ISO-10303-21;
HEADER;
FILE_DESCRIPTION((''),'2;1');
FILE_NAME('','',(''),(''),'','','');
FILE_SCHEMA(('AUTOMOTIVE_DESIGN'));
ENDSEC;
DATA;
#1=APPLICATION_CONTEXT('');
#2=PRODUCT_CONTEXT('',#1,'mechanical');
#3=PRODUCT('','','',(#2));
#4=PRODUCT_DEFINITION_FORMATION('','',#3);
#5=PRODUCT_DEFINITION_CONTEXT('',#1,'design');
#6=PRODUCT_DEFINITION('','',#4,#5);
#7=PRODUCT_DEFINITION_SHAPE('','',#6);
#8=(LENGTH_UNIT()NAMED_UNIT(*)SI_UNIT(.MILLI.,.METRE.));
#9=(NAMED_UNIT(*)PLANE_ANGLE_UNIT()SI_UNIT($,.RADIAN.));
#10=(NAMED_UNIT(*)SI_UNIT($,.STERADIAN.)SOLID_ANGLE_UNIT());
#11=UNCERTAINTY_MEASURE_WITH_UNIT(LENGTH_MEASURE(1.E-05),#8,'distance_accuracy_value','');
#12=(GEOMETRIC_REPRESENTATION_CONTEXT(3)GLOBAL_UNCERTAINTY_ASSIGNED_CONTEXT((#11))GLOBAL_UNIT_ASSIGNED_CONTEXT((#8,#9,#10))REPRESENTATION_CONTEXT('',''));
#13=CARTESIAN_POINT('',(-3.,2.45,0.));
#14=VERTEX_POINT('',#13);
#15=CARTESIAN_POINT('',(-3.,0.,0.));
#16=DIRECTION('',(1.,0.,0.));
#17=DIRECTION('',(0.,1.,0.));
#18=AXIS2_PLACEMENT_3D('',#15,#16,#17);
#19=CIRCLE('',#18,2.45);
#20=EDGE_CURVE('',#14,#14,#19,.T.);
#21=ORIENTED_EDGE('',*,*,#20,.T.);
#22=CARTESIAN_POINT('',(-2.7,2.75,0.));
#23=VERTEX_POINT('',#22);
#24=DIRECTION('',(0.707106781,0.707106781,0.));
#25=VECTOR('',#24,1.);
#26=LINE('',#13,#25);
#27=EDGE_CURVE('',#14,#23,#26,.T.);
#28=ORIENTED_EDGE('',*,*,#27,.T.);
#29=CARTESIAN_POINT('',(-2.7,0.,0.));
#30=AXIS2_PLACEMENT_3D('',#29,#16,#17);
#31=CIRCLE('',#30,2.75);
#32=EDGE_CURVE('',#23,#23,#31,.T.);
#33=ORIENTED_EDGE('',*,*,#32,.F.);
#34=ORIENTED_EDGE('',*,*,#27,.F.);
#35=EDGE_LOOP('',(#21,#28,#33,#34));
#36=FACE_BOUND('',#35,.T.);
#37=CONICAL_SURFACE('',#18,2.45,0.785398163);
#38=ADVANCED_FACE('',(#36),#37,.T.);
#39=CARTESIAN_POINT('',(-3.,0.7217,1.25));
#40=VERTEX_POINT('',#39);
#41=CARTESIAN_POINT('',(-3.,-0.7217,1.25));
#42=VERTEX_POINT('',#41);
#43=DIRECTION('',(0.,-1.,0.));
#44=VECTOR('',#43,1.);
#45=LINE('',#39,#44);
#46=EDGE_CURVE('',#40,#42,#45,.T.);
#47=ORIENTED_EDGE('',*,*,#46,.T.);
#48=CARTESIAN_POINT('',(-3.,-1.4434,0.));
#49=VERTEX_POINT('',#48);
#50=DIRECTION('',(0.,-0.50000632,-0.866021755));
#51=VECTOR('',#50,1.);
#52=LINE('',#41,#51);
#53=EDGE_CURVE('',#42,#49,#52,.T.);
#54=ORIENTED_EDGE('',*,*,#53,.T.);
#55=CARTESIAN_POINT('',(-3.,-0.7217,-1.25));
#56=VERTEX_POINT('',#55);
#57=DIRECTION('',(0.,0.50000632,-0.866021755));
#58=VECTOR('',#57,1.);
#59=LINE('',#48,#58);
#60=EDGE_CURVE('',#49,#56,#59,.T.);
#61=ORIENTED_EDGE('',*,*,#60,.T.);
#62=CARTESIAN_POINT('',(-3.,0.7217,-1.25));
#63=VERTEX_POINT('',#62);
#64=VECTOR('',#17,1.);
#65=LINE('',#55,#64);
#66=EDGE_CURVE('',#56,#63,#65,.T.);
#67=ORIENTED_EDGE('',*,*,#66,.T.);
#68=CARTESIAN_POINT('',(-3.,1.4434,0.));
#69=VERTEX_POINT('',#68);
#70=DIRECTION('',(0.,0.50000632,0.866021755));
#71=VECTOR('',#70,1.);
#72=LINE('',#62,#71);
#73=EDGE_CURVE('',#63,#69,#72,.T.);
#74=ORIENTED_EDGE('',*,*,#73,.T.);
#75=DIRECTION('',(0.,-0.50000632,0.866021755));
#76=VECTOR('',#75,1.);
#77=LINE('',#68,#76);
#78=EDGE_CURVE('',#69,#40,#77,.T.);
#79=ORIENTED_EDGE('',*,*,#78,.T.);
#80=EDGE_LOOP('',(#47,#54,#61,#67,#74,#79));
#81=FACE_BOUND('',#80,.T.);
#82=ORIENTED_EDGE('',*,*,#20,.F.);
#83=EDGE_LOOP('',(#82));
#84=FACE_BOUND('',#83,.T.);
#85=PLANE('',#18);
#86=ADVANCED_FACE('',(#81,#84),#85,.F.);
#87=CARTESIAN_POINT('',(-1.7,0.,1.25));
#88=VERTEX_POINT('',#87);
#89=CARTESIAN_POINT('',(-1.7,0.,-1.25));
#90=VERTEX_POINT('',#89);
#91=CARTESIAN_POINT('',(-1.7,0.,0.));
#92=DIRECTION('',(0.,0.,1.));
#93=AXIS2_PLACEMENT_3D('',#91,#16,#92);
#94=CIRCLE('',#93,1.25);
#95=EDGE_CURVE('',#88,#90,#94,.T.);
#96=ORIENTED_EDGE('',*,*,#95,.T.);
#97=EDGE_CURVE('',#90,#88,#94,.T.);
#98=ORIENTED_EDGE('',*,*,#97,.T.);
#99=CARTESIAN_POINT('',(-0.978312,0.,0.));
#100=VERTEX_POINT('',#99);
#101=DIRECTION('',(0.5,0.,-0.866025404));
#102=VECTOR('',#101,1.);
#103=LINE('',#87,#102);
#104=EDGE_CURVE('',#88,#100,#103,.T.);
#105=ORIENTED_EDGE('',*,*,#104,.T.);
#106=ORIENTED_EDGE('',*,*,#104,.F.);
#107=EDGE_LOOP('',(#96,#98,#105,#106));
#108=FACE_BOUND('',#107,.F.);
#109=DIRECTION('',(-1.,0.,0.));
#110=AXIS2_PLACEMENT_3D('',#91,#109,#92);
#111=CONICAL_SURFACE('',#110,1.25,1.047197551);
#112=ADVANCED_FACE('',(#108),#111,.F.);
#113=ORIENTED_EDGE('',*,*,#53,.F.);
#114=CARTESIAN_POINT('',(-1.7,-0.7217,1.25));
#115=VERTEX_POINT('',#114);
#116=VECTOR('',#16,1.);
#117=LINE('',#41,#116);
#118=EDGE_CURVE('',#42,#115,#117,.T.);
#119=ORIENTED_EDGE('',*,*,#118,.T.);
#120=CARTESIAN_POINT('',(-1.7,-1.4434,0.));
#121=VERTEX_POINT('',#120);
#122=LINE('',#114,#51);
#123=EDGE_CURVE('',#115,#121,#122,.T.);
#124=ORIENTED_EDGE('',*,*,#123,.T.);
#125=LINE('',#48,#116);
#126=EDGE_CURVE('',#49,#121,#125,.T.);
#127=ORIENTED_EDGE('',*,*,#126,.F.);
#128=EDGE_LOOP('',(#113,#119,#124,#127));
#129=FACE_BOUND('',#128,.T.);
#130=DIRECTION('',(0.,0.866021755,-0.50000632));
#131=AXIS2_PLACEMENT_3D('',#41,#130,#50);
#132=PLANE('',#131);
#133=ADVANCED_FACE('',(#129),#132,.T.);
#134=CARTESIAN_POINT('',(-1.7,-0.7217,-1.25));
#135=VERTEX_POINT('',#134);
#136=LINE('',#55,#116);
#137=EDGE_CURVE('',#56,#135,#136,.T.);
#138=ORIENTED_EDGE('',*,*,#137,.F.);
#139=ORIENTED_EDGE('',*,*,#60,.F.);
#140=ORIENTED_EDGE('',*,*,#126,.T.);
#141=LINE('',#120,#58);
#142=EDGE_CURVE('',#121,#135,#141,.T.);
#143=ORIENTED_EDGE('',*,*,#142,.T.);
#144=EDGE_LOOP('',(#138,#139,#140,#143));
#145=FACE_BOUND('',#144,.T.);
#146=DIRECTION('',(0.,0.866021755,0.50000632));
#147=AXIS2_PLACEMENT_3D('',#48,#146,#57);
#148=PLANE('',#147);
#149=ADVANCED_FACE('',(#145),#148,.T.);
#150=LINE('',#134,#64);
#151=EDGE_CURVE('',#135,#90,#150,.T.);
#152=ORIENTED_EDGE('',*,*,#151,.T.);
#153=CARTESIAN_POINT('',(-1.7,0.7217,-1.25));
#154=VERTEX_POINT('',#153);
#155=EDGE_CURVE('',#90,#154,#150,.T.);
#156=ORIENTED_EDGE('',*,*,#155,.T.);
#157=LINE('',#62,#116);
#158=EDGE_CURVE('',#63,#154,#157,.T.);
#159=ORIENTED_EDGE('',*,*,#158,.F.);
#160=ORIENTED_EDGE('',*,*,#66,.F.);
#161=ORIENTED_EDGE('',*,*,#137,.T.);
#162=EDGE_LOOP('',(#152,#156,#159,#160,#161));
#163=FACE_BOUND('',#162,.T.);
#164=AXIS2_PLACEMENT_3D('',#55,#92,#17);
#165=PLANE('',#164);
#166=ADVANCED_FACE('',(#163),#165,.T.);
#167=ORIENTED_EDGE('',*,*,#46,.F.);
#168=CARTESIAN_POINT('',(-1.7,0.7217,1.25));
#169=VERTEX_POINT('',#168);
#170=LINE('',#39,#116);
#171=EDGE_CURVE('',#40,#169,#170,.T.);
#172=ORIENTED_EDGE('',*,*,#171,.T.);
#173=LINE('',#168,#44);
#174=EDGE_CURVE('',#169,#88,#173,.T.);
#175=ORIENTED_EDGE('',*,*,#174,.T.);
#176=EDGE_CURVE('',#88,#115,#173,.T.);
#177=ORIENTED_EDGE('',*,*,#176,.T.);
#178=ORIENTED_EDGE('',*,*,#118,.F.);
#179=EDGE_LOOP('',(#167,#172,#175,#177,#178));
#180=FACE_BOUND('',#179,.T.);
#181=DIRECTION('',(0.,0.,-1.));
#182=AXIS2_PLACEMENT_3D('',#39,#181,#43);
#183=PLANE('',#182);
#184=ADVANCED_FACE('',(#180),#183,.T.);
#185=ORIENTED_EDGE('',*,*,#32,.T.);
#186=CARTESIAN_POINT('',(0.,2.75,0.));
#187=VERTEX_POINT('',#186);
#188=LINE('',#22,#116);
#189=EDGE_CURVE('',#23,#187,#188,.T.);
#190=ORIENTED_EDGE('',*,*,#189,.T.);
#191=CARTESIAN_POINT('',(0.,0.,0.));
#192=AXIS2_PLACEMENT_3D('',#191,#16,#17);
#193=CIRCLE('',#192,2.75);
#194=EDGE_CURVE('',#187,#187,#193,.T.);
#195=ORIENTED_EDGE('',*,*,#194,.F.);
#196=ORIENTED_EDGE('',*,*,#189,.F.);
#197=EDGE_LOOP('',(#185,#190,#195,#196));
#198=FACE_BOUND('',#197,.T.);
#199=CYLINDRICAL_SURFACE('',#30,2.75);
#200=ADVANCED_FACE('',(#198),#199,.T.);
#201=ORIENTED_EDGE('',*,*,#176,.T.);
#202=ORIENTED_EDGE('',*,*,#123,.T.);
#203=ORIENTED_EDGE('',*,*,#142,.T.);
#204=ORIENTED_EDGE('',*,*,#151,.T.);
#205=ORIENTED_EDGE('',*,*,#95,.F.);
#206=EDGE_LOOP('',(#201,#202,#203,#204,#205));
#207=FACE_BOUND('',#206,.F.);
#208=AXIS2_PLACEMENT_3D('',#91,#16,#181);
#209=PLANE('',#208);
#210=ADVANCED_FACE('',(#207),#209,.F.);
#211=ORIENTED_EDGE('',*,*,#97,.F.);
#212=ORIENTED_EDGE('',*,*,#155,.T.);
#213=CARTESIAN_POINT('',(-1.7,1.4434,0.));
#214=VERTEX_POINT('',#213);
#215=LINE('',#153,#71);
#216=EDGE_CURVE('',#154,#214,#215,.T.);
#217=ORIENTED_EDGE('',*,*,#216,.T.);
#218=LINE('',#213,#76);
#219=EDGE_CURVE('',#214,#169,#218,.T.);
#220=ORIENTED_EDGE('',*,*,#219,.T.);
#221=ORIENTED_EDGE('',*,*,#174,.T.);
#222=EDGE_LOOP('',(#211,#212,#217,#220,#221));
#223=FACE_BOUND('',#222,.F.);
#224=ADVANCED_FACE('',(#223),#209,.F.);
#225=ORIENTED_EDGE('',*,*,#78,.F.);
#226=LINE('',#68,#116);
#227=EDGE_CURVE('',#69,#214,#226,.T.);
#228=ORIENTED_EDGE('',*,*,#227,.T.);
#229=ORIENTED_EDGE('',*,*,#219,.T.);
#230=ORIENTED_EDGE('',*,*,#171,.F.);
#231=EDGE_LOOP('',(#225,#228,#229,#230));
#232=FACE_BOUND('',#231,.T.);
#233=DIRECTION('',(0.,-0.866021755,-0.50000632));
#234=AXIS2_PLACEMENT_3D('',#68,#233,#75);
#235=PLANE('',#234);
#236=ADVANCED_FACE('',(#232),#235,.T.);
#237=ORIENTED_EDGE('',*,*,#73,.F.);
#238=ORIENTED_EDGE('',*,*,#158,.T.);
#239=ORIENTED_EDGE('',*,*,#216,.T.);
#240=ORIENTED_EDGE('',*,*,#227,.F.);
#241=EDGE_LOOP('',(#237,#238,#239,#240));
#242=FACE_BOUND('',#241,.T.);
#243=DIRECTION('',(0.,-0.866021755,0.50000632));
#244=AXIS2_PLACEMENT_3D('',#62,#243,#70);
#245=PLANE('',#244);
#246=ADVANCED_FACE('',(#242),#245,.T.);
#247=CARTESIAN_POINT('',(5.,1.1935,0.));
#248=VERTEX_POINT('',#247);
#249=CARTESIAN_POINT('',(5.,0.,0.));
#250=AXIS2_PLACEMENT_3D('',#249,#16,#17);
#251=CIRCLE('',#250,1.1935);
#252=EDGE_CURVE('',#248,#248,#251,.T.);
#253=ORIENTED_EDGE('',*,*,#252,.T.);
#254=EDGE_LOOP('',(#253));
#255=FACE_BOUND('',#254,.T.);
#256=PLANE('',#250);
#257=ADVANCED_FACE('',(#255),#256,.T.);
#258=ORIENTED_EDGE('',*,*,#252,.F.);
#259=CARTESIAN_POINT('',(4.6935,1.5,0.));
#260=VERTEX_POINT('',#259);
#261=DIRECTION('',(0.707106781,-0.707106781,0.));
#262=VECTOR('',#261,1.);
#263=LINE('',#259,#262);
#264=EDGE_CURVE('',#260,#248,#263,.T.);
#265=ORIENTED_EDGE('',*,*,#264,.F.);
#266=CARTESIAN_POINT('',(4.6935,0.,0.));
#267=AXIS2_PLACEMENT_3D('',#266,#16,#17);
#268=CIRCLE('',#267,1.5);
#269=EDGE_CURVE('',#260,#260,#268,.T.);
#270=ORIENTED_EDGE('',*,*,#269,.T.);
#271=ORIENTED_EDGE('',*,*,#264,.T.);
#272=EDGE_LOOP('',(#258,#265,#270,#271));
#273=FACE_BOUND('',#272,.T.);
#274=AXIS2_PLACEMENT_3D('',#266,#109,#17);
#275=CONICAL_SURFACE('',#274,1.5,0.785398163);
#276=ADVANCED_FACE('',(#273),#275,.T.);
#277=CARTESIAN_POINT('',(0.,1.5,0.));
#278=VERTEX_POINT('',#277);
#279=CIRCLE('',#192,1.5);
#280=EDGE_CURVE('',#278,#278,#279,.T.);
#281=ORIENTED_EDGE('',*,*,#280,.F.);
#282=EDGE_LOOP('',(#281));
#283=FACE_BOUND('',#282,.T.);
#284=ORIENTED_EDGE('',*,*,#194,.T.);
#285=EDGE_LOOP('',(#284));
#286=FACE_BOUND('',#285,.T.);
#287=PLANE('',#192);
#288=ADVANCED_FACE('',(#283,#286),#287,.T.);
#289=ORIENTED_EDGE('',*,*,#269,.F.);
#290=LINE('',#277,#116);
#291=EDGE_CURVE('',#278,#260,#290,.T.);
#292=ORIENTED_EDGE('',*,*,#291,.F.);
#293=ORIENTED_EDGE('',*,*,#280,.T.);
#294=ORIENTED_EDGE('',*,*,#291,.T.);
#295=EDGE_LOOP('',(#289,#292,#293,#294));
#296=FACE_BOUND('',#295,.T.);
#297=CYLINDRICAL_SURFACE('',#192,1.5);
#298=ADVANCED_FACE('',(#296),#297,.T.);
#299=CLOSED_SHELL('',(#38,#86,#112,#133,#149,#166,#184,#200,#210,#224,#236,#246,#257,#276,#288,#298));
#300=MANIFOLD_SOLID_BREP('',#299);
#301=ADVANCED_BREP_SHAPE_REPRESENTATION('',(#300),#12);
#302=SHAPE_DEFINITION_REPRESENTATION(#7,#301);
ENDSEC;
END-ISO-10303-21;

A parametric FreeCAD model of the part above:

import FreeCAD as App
import Part
import Sketcher
from FreeCAD import Vector
Q = App.Units.Quantity


def add_polygon(sketch, points):
    """Adds a closed chain of lines whose ends are joined by coincident constraints."""
    first, n = sketch.GeometryCount, len(points)
    for a, b in zip(points, points[1:] + points[:1]):
        sketch.addGeometry(Part.LineSegment(App.Vector(*a, 0), App.Vector(*b, 0)), False)
    for i in range(n):
        sketch.addConstraint(Sketcher.Constraint("Coincident", first + i, 2, first + (i + 1) % n, 1))

doc = App.newDocument("Part")
params = doc.addObject("Spreadsheet::Sheet", "Params")
for row, (alias, value) in enumerate([
    ("sketch1_width", "8 mm"),
    ("sketch1_width2", "2.7 mm"),
    ("sketch1_height", "1.25 mm"),
    ("sketch1_height2", "2.45 mm"),
    ("revolution_angle", "360 deg"),
    ("sketch2_diameter", "2.5 mm"),
    ("hole_diameter", "2.5 mm"),
    ("hole_depth", "1.3 mm"),
    ("pocket1_length", "1.3 mm"),
], start=1):
    params.set(f"A{row}", alias)
    params.set(f"B{row}", "=" + value)
    params.setAlias(f"B{row}", alias)

body = doc.addObject("PartDesign::Body", "Body")

sketch1 = body.newObject("Sketcher::SketchObject", "Sketch")
sketch1.AttachmentSupport = (doc.getObject("XY_Plane"), [""])
sketch1.MapMode = "FlatFace"
add_polygon(sketch1, [(-3, 0), (5, 0), (5, 1.1935), (4.6935, 1.5), (0, 1.5), (0, 2.75), (-2.7, 2.75), (-3, 2.45)])
sketch1.addConstraint(Sketcher.Constraint("Horizontal", 0))
sketch1.addConstraint(Sketcher.Constraint("Vertical", 1))
sketch1.addConstraint(Sketcher.Constraint("Horizontal", 3))
sketch1.addConstraint(Sketcher.Constraint("Vertical", 4))
sketch1.addConstraint(Sketcher.Constraint("Horizontal", 5))
sketch1.addConstraint(Sketcher.Constraint("Vertical", 7))
sketch1.addConstraint(Sketcher.Constraint("PointOnObject", 0, 2, -1))
sketch1.addConstraint(Sketcher.Constraint("PointOnObject", 3, 2, -2))
sketch1.addConstraint(Sketcher.Constraint("Perpendicular", 2, 6))
sketch1.addConstraint(Sketcher.Constraint("DistanceX", 0, 1, 0, 2, 8.0))
sketch1.addConstraint(Sketcher.Constraint("Angle", 2, Q("135 deg")))
sketch1.addConstraint(Sketcher.Constraint("DistanceX", 5, 2, 5, 1, 2.7))
sketch1.addConstraint(Sketcher.Constraint("DistanceX", -1, 1, 0, 2, 5.0))
sketch1.addConstraint(Sketcher.Constraint("DistanceY", 4, 1, 4, 2, 1.25))
sketch1.addConstraint(Sketcher.Constraint("DistanceY", 7, 2, 7, 1, 2.45))
sketch1.addConstraint(Sketcher.Constraint("DistanceX", 3, 2, 3, 1, 4.6935))
sketch1.setExpression("Constraints[17]", "Params.sketch1_width")
sketch1.setExpression("Constraints[19]", "Params.sketch1_width2")
sketch1.setExpression("Constraints[21]", "Params.sketch1_height")
sketch1.setExpression("Constraints[22]", "Params.sketch1_height2")
revolution = body.newObject("PartDesign::Revolution", "Revolution")
revolution.Profile = sketch1
revolution.ReferenceAxis = (sketch1, ["H_Axis"])
revolution.setExpression("Angle", "Params.revolution_angle")

sketch2 = body.newObject("Sketcher::SketchObject", "Sketch001")
sketch2.AttachmentSupport = (doc.getObject("YZ_Plane"), [""])
sketch2.MapMode = "FlatFace"
sketch2.AttachmentOffset = App.Placement(Vector(0, 0, -3), App.Rotation())
sketch2.addGeometry(Part.Circle(Vector(0, 0, 0), Vector(0, 0, 1), 1.25), False)
sketch2.addConstraint(Sketcher.Constraint("Coincident", 0, 3, -1, 1))
sketch2.addConstraint(Sketcher.Constraint("Diameter", 0, 2.5))
sketch2.setExpression("Constraints[1]", "Params.sketch2_diameter")
doc.recompute()
hole = body.newObject("PartDesign::Hole", "Hole")
hole.Profile = sketch2
hole.ThreadType = "None"
hole.setExpression("Diameter", "Params.hole_diameter")
hole.DepthType = "Dimension"
hole.setExpression("Depth", "Params.hole_depth")
hole.DrillPoint = "Angled"
hole.DrillPointAngle = 120
hole.Reversed = True

sketch3 = body.newObject("Sketcher::SketchObject", "Sketch002")
sketch3.AttachmentSupport = (doc.getObject("YZ_Plane"), [""])
sketch3.MapMode = "FlatFace"
sketch3.AttachmentOffset = App.Placement(Vector(0, 0, -3), App.Rotation())
add_polygon(sketch3, [(0.7217, 1.25), (-0.7217, 1.25), (-1.4434, 0), (-0.7217, -1.25), (0.7217, -1.25), (1.4434, 0)])
sketch3.addConstraint(Sketcher.Constraint("Horizontal", 0))
sketch3.addConstraint(Sketcher.Constraint("Horizontal", 3))
sketch3.addConstraint(Sketcher.Constraint("Symmetric", 0, 2, 3, 2, -1, 1))
sketch3.addConstraint(Sketcher.Constraint("Symmetric", 1, 2, 4, 2, -1, 1))
sketch3.addConstraint(Sketcher.Constraint("PointOnObject", 1, 2, -1))
sketch3.addConstraint(Sketcher.Constraint("Parallel", 2, 5))
sketch3.addConstraint(Sketcher.Constraint("Vertical", 0, 2, 2, 2))
sketch3.addConstraint(Sketcher.Constraint("Angle", 1, Q("-120.0004 deg")))
sketch3.addConstraint(Sketcher.Constraint("DistanceY", 2, 2, 0, 2, 2.5))
sketch3.addConstraint(Sketcher.Constraint("DistanceX", 0, 2, 0, 1, 1.4434))
pocket1 = body.newObject("PartDesign::Pocket", "Pocket")
pocket1.Profile = sketch3
pocket1.setExpression("Length", "Params.pocket1_length")
pocket1.Reversed = True

doc.recompute()
